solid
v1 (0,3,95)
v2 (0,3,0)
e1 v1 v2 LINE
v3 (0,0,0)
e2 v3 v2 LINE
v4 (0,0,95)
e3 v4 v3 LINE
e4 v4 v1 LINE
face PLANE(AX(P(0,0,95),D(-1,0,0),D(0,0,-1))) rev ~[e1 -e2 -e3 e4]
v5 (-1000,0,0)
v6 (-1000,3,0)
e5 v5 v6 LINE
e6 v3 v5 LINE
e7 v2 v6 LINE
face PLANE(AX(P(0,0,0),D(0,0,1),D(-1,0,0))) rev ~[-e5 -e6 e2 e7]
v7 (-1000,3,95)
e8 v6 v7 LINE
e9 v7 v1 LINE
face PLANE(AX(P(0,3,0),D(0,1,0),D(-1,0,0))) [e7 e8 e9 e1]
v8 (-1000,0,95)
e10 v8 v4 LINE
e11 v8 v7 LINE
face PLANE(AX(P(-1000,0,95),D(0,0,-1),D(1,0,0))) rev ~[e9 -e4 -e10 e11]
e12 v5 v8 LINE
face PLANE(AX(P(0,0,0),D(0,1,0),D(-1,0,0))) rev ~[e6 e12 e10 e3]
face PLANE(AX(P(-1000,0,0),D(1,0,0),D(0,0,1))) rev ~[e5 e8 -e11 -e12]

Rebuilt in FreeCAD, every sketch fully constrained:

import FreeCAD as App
import Part
import Sketcher
from FreeCAD import Vector
Q = App.Units.Quantity

doc = App.newDocument("Part")
params = doc.addObject("Spreadsheet::Sheet", "Params")
for row, (alias, value) in enumerate([
    ("sketch1_width", "1000 mm"),
    ("sketch1_height", "95 mm"),
    ("pad1_length", "3 mm"),
], start=1):
    params.set(f"A{row}", alias)
    params.set(f"B{row}", "=" + value)
    params.setAlias(f"B{row}", alias)

body = doc.addObject("PartDesign::Body", "Body")

sketch1 = doc.addObject("Sketcher::SketchObject", "Sketch")
body.addObject(sketch1)
sketch1.AttachmentSupport = (doc.XZ_Plane, [""])
sketch1.MapMode = "FlatFace"
sketch1.addGeometry([
    Part.LineSegment(Vector(0, 95, 0), Vector(0, 0, 0)),
    Part.LineSegment(Vector(0, 0, 0), Vector(-1000, 0, 0)),
    Part.LineSegment(Vector(-1000, 0, 0), Vector(-1000, 95, 0)),
    Part.LineSegment(Vector(-1000, 95, 0), Vector(0, 95, 0)),
], False)
sketch1.addConstraint([
    Sketcher.Constraint("Coincident", 0, 2, 1, 1),
    Sketcher.Constraint("Coincident", 1, 2, 2, 1),
    Sketcher.Constraint("Coincident", 2, 2, 3, 1),
    Sketcher.Constraint("Coincident", 3, 2, 0, 1),
    Sketcher.Constraint("Vertical", 0),
    Sketcher.Constraint("Horizontal", 1),
    Sketcher.Constraint("Vertical", 2),
    Sketcher.Constraint("Horizontal", 3),
    Sketcher.Constraint("Coincident", 0, 2, -1, 1),
    Sketcher.Constraint("DistanceX", 1, 2, 1, 1, Q("1000 mm")),
    Sketcher.Constraint("DistanceY", 0, 2, 0, 1, Q("95 mm")),
])
sketch1.setExpression("Constraints[9]", "Params.sketch1_width")
sketch1.setExpression("Constraints[10]", "Params.sketch1_height")
pad1 = doc.addObject("PartDesign::Pad", "Pad")
body.addObject(pad1)
pad1.Profile = sketch1
pad1.setExpression("Length", "Params.pad1_length")
pad1.Reversed = True

doc.recompute()
